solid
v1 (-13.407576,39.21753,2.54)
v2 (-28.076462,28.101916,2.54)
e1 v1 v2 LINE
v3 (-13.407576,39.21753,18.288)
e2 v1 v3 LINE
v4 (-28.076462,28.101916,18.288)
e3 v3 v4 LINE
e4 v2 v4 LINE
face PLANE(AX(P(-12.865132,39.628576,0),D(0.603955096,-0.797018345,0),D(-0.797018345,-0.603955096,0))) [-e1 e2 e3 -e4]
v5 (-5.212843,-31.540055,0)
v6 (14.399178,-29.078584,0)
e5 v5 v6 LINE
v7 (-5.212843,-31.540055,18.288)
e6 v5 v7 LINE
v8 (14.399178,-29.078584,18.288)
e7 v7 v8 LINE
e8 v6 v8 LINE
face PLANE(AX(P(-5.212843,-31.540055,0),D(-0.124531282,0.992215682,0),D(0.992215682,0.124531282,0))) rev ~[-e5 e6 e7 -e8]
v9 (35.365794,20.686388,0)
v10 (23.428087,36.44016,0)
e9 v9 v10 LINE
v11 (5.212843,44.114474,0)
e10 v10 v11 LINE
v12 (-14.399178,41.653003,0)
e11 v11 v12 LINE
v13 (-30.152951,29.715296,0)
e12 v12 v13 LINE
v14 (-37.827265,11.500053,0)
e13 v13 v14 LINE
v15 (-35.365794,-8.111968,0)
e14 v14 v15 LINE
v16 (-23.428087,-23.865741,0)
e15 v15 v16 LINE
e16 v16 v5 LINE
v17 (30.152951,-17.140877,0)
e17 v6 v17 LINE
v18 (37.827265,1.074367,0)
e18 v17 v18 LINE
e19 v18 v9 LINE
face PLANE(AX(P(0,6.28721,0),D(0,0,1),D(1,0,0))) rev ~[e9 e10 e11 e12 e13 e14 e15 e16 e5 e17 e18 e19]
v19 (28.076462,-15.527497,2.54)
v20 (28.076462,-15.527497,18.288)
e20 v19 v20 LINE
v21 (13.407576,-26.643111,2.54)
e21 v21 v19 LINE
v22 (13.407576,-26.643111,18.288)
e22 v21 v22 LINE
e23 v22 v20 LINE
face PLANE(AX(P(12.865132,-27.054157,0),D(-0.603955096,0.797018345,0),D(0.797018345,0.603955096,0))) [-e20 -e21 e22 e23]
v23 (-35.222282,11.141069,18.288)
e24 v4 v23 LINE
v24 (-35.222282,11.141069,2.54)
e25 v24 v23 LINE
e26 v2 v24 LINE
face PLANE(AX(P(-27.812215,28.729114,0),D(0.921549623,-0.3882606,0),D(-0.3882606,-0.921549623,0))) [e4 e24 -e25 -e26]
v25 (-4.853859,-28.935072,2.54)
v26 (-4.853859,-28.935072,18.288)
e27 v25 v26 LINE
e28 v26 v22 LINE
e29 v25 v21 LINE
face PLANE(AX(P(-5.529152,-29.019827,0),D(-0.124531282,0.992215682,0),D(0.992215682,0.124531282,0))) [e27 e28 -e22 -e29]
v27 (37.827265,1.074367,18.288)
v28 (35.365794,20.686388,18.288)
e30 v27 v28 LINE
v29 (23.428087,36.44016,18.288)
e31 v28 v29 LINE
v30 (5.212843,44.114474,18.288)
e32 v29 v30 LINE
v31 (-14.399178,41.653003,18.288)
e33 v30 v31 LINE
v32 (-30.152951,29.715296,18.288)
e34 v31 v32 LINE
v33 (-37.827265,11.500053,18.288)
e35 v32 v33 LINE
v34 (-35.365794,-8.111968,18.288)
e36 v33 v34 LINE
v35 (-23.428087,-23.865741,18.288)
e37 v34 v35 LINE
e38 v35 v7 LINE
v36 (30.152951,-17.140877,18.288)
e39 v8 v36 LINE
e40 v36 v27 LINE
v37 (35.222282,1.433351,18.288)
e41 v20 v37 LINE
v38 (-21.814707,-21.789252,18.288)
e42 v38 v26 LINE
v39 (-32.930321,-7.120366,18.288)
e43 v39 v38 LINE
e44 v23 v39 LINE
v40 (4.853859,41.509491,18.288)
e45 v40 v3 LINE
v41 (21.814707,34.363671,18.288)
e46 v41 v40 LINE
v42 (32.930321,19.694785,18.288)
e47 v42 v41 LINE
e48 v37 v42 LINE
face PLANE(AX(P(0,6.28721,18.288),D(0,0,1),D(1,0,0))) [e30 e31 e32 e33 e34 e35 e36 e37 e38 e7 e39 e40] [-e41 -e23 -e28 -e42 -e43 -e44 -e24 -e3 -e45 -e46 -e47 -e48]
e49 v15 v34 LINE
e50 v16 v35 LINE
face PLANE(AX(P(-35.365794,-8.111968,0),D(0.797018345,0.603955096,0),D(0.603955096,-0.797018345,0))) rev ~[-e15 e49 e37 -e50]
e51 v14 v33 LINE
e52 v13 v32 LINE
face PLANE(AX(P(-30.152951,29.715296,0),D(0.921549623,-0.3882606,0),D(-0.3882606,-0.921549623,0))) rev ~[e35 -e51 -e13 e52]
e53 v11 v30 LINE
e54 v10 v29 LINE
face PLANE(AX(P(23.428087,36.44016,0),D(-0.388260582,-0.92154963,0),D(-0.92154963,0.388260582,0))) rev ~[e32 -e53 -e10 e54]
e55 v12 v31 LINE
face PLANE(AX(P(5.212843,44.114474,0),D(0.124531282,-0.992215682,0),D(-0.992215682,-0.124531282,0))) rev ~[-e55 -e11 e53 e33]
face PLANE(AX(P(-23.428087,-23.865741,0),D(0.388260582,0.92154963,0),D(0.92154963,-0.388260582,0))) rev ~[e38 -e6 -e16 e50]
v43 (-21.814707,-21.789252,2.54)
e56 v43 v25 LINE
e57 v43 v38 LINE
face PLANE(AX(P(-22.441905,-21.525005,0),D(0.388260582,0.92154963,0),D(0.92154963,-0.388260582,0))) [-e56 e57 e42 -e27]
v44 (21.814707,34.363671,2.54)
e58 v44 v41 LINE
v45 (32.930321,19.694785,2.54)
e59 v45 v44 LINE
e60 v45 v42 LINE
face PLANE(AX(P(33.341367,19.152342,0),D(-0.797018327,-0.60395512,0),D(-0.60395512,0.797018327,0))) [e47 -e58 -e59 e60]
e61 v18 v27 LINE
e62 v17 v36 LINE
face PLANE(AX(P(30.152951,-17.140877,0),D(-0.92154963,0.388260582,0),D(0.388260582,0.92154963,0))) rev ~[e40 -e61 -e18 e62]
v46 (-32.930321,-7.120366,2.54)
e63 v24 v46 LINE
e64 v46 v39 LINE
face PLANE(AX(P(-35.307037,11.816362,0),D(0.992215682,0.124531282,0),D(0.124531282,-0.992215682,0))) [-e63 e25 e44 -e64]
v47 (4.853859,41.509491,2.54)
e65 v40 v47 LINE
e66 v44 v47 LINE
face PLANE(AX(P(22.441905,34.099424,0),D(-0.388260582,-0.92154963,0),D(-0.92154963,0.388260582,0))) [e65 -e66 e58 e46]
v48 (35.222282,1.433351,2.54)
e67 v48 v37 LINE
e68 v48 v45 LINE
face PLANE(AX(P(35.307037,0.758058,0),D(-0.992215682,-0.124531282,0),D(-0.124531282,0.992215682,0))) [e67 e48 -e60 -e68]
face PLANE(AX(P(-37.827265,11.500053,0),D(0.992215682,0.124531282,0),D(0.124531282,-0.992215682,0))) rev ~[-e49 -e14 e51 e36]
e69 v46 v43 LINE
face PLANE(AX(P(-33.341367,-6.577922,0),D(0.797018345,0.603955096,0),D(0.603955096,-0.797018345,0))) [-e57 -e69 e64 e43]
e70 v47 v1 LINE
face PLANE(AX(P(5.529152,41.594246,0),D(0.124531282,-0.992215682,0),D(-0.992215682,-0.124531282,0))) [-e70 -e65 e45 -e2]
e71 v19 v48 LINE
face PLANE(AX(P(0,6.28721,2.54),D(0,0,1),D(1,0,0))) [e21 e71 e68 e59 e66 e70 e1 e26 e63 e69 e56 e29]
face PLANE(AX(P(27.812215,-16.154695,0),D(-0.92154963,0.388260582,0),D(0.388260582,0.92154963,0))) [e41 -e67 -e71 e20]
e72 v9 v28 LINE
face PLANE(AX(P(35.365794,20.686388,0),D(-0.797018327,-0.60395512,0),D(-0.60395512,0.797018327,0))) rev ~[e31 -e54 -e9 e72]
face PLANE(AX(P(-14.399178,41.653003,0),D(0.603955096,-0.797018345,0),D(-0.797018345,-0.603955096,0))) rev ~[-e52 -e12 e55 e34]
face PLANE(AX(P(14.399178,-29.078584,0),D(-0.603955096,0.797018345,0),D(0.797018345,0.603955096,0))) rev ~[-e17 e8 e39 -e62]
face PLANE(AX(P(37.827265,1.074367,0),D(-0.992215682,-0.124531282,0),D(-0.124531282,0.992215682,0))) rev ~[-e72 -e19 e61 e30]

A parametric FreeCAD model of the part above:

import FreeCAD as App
import Part
import Sketcher

V = App.Vector
Q = App.Units.Quantity


def faces_at(feature, points):
    """Names of the faces that lie closest to the given points."""
    faces = feature.Shape.Faces
    near = lambda p: min(range(len(faces)), key=lambda i: faces[i].distToShape(Part.Vertex(*p))[0])
    return sorted({f"Face{near(p) + 1}" for p in points})

doc = App.newDocument("Part")
body = doc.addObject("PartDesign::Body", "Body")

# Sketch on XY plane
sketch1 = body.newObject("Sketcher::SketchObject", "Sketch")
sketch1.AttachmentSupport = (doc.getObject("XY_Plane"), [""])
sketch1.MapMode = "FlatFace"
sketch1.addGeometry([
    Part.LineSegment(V(5.212843, 44.114474, 0), V(-14.399178, 41.653003, 0)),  # 0
    Part.LineSegment(V(-14.399178, 41.653003, 0), V(-30.152951, 29.715296, 0)),  # 1
    Part.LineSegment(V(-30.152951, 29.715296, 0), V(-37.827265, 11.500053, 0)),  # 2
    Part.LineSegment(V(-37.827265, 11.500053, 0), V(-35.365794, -8.111968, 0)),  # 3
    Part.LineSegment(V(-35.365794, -8.111968, 0), V(-23.428087, -23.865741, 0)),  # 4
    Part.LineSegment(V(-23.428087, -23.865741, 0), V(-5.212843, -31.540055, 0)),  # 5
    Part.LineSegment(V(-5.212843, -31.540055, 0), V(14.399178, -29.078584, 0)),  # 6
    Part.LineSegment(V(14.399178, -29.078584, 0), V(30.152951, -17.140877, 0)),  # 7
    Part.LineSegment(V(30.152951, -17.140877, 0), V(37.827265, 1.074367, 0)),  # 8
    Part.LineSegment(V(37.827265, 1.074367, 0), V(35.365794, 20.686388, 0)),  # 9
    Part.LineSegment(V(35.365794, 20.686388, 0), V(23.428087, 36.44016, 0)),  # 10
    Part.LineSegment(V(23.428087, 36.44016, 0), V(5.212843, 44.114474, 0)),  # 11
], False)
sketch1.addConstraint([
    Sketcher.Constraint("Coincident", 0, 2, 1, 1),
    Sketcher.Constraint("Coincident", 1, 2, 2, 1),
    Sketcher.Constraint("Coincident", 2, 2, 3, 1),
    Sketcher.Constraint("Coincident", 3, 2, 4, 1),
    Sketcher.Constraint("Coincident", 4, 2, 5, 1),
    Sketcher.Constraint("Coincident", 5, 2, 6, 1),
    Sketcher.Constraint("Coincident", 6, 2, 7, 1),
    Sketcher.Constraint("Coincident", 7, 2, 8, 1),
    Sketcher.Constraint("Coincident", 8, 2, 9, 1),
    Sketcher.Constraint("Coincident", 9, 2, 10, 1),
    Sketcher.Constraint("Coincident", 10, 2, 11, 1),
    Sketcher.Constraint("Coincident", 11, 2, 0, 1),
    Sketcher.Constraint("Perpendicular", 0, 3),
    Sketcher.Constraint("Perpendicular", 1, 4),
    Sketcher.Constraint("Perpendicular", 2, 5),
    Sketcher.Constraint("Perpendicular", 3, 6),
    Sketcher.Constraint("Perpendicular", 4, 7),
    Sketcher.Constraint("Perpendicular", 5, 8),
    Sketcher.Constraint("Perpendicular", 6, 9),
    Sketcher.Constraint("Perpendicular", 7, 10),
    Sketcher.Constraint("Perpendicular", 8, 11),
    Sketcher.Constraint("Equal", 0, 1),
    Sketcher.Constraint("Equal", 1, 2),
    Sketcher.Constraint("Equal", 2, 3),
    Sketcher.Constraint("Equal", 3, 4),
    Sketcher.Constraint("Equal", 4, 5),
    Sketcher.Constraint("Equal", 5, 6),
    Sketcher.Constraint("Equal", 6, 7),
    Sketcher.Constraint("Equal", 7, 8),
    Sketcher.Constraint("Equal", 8, 9),
    Sketcher.Constraint("DistanceX", 1, 2, -1, 1, Q("30.152951 mm")),
    Sketcher.Constraint("DistanceY", 4, 2, -1, 1, Q("23.865741 mm")),
    Sketcher.Constraint("DistanceX", -1, 1, 7, 2, Q("30.152951 mm")),
    Sketcher.Constraint("DistanceY", -1, 1, 9, 2, Q("20.686388 mm")),
    Sketcher.Constraint("DistanceY", 2, 2, 0, 2, Q("30.15295 mm")),
    Sketcher.Constraint("DistanceX", 2, 2, 3, 2, Q("2.461471 mm")),
])
pad1 = body.newObject("PartDesign::Pad", "Pad")
pad1.Profile = sketch1
pad1.Length = Q("0.72 in")
doc.recompute()

thickness = body.newObject("PartDesign::Thickness", "Thickness")
thickness.Base = (pad1, faces_at(pad1, [(0, 6.287, 18.288)]))
thickness.Value = Q("7 in")
thickness.Reversed = True
thickness.Join = "Arc"
doc.recompute()

thickness2 = body.newObject("PartDesign::Thickness", "Thickness001")
thickness2.Base = (thickness, faces_at(thickness, [(0, 6.287, 18.288)]))
thickness2.Value = Q("0.1 in")
thickness2.Reversed = True
thickness2.Join = "Arc"

doc.recompute()
